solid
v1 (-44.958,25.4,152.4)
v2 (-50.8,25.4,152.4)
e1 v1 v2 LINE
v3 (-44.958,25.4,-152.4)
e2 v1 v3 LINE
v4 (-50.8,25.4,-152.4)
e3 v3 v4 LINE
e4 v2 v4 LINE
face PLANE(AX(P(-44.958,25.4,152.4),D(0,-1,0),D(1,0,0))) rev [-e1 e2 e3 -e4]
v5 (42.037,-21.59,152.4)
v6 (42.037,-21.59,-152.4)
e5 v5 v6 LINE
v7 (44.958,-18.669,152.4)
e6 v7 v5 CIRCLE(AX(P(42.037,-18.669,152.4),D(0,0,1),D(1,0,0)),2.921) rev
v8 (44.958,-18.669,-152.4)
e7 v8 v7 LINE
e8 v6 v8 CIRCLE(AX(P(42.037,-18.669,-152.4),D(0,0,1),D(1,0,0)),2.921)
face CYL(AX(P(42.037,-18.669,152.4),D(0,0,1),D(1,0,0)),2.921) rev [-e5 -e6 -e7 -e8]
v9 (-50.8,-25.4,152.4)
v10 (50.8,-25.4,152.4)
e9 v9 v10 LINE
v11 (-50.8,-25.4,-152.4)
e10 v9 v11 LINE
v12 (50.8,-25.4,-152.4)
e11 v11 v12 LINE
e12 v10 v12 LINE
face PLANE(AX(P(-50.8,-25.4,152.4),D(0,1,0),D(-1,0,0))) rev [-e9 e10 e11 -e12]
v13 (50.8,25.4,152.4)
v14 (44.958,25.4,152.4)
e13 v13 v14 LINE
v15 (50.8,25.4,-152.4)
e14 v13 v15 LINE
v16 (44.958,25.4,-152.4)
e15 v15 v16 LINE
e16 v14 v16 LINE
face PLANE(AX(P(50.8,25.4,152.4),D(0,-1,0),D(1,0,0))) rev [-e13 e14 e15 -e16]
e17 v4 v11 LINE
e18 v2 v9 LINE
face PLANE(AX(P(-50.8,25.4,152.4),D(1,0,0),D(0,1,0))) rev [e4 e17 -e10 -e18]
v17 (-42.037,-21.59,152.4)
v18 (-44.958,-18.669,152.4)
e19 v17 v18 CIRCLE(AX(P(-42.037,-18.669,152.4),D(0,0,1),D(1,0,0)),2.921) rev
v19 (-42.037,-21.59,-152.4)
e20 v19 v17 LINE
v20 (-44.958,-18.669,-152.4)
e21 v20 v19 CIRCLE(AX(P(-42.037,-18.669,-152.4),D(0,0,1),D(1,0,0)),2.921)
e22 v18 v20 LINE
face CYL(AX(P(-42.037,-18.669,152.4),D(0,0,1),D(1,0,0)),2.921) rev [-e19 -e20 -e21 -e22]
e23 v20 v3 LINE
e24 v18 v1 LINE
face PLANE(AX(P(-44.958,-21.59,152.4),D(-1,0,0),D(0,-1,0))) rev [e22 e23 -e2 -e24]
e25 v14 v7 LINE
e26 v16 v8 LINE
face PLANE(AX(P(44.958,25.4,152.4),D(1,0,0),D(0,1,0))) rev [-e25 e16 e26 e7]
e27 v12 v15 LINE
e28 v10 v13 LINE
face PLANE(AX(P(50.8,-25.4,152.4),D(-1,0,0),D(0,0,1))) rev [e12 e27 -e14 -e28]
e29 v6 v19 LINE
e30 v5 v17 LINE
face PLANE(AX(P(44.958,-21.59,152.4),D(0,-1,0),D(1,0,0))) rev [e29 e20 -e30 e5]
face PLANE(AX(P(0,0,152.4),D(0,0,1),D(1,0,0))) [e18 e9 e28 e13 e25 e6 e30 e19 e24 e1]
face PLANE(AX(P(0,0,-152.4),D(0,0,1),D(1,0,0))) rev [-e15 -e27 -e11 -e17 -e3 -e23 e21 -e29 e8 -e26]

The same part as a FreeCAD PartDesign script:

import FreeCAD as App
import Part
import Sketcher
from FreeCAD import Vector
Q = App.Units.Quantity


def edges_at(feature, points):
    """Names of the edges that pass closest to the given points."""
    edges = feature.Shape.Edges
    near = lambda p: min(range(len(edges)), key=lambda i: edges[i].distToShape(Part.Vertex(*p))[0])
    return sorted({f"Edge{near(p) + 1}" for p in points})

doc = App.newDocument("Part")
body = doc.addObject("PartDesign::Body", "Body")

# Sketch on XY plane
sketch1 = body.newObject("Sketcher::SketchObject", "Sketch")
sketch1.AttachmentSupport = (doc.getObject("XY_Plane"), [""])
sketch1.MapMode = "FlatFace"
sketch1.addGeometry([
    Part.LineSegment(Vector(-51, 25, 0), Vector(-51, -25, 0)),  # 0
    Part.LineSegment(Vector(-51, -25, 0), Vector(51, -25, 0)),  # 1
    Part.LineSegment(Vector(51, -25, 0), Vector(51, 25, 0)),  # 2
    Part.LineSegment(Vector(51, 25, 0), Vector(45, 25, 0)),  # 3
    Part.LineSegment(Vector(45, 25, 0), Vector(45, -22, 0)),  # 4
    Part.LineSegment(Vector(45, -22, 0), Vector(-45, -22, 0)),  # 5
    Part.LineSegment(Vector(-45, -22, 0), Vector(-45, 25, 0)),  # 6
    Part.LineSegment(Vector(-45, 25, 0), Vector(-51, 25, 0)),  # 7
], False)
sketch1.addConstraint([
    Sketcher.Constraint("Coincident", 0, 2, 1, 1),
    Sketcher.Constraint("Coincident", 1, 2, 2, 1),
    Sketcher.Constraint("Coincident", 2, 2, 3, 1),
    Sketcher.Constraint("Coincident", 3, 2, 4, 1),
    Sketcher.Constraint("Coincident", 4, 2, 5, 1),
    Sketcher.Constraint("Coincident", 5, 2, 6, 1),
    Sketcher.Constraint("Coincident", 6, 2, 7, 1),
    Sketcher.Constraint("Coincident", 7, 2, 0, 1),
    Sketcher.Constraint("Vertical", 0),
    Sketcher.Constraint("Horizontal", 1),
    Sketcher.Constraint("Vertical", 2),
    Sketcher.Constraint("Horizontal", 3),
    Sketcher.Constraint("Vertical", 4),
    Sketcher.Constraint("Horizontal", 5),
    Sketcher.Constraint("Vertical", 6),
    Sketcher.Constraint("Horizontal", 7),
    Sketcher.Constraint("Symmetric", 0, 2, 2, 2, -1, 1),
    Sketcher.Constraint("Symmetric", 3, 2, 6, 2, -2),
    Sketcher.Constraint("DistanceX", 1, 1, 1, 2, Q("4 in")),
    Sketcher.Constraint("DistanceY", 0, 2, 0, 1, Q("2 in")),
    Sketcher.Constraint("DistanceX", 3, 2, 3, 1, Q("0.23 in")),
    Sketcher.Constraint("DistanceY", 4, 2, 4, 1, Q("1.85 in")),
])
pad1 = body.newObject("PartDesign::Pad", "Pad")
pad1.Profile = sketch1
pad1.Length = Q("12 in")
pad1.Midplane = True
doc.recompute()

fillet = body.newObject("PartDesign::Fillet", "Fillet")
fillet.Base = (pad1, edges_at(pad1, [(-44.958, -21.59, 0), (44.958, -21.59, 0)]))
fillet.Radius = Q("0.115 in")

doc.recompute()
